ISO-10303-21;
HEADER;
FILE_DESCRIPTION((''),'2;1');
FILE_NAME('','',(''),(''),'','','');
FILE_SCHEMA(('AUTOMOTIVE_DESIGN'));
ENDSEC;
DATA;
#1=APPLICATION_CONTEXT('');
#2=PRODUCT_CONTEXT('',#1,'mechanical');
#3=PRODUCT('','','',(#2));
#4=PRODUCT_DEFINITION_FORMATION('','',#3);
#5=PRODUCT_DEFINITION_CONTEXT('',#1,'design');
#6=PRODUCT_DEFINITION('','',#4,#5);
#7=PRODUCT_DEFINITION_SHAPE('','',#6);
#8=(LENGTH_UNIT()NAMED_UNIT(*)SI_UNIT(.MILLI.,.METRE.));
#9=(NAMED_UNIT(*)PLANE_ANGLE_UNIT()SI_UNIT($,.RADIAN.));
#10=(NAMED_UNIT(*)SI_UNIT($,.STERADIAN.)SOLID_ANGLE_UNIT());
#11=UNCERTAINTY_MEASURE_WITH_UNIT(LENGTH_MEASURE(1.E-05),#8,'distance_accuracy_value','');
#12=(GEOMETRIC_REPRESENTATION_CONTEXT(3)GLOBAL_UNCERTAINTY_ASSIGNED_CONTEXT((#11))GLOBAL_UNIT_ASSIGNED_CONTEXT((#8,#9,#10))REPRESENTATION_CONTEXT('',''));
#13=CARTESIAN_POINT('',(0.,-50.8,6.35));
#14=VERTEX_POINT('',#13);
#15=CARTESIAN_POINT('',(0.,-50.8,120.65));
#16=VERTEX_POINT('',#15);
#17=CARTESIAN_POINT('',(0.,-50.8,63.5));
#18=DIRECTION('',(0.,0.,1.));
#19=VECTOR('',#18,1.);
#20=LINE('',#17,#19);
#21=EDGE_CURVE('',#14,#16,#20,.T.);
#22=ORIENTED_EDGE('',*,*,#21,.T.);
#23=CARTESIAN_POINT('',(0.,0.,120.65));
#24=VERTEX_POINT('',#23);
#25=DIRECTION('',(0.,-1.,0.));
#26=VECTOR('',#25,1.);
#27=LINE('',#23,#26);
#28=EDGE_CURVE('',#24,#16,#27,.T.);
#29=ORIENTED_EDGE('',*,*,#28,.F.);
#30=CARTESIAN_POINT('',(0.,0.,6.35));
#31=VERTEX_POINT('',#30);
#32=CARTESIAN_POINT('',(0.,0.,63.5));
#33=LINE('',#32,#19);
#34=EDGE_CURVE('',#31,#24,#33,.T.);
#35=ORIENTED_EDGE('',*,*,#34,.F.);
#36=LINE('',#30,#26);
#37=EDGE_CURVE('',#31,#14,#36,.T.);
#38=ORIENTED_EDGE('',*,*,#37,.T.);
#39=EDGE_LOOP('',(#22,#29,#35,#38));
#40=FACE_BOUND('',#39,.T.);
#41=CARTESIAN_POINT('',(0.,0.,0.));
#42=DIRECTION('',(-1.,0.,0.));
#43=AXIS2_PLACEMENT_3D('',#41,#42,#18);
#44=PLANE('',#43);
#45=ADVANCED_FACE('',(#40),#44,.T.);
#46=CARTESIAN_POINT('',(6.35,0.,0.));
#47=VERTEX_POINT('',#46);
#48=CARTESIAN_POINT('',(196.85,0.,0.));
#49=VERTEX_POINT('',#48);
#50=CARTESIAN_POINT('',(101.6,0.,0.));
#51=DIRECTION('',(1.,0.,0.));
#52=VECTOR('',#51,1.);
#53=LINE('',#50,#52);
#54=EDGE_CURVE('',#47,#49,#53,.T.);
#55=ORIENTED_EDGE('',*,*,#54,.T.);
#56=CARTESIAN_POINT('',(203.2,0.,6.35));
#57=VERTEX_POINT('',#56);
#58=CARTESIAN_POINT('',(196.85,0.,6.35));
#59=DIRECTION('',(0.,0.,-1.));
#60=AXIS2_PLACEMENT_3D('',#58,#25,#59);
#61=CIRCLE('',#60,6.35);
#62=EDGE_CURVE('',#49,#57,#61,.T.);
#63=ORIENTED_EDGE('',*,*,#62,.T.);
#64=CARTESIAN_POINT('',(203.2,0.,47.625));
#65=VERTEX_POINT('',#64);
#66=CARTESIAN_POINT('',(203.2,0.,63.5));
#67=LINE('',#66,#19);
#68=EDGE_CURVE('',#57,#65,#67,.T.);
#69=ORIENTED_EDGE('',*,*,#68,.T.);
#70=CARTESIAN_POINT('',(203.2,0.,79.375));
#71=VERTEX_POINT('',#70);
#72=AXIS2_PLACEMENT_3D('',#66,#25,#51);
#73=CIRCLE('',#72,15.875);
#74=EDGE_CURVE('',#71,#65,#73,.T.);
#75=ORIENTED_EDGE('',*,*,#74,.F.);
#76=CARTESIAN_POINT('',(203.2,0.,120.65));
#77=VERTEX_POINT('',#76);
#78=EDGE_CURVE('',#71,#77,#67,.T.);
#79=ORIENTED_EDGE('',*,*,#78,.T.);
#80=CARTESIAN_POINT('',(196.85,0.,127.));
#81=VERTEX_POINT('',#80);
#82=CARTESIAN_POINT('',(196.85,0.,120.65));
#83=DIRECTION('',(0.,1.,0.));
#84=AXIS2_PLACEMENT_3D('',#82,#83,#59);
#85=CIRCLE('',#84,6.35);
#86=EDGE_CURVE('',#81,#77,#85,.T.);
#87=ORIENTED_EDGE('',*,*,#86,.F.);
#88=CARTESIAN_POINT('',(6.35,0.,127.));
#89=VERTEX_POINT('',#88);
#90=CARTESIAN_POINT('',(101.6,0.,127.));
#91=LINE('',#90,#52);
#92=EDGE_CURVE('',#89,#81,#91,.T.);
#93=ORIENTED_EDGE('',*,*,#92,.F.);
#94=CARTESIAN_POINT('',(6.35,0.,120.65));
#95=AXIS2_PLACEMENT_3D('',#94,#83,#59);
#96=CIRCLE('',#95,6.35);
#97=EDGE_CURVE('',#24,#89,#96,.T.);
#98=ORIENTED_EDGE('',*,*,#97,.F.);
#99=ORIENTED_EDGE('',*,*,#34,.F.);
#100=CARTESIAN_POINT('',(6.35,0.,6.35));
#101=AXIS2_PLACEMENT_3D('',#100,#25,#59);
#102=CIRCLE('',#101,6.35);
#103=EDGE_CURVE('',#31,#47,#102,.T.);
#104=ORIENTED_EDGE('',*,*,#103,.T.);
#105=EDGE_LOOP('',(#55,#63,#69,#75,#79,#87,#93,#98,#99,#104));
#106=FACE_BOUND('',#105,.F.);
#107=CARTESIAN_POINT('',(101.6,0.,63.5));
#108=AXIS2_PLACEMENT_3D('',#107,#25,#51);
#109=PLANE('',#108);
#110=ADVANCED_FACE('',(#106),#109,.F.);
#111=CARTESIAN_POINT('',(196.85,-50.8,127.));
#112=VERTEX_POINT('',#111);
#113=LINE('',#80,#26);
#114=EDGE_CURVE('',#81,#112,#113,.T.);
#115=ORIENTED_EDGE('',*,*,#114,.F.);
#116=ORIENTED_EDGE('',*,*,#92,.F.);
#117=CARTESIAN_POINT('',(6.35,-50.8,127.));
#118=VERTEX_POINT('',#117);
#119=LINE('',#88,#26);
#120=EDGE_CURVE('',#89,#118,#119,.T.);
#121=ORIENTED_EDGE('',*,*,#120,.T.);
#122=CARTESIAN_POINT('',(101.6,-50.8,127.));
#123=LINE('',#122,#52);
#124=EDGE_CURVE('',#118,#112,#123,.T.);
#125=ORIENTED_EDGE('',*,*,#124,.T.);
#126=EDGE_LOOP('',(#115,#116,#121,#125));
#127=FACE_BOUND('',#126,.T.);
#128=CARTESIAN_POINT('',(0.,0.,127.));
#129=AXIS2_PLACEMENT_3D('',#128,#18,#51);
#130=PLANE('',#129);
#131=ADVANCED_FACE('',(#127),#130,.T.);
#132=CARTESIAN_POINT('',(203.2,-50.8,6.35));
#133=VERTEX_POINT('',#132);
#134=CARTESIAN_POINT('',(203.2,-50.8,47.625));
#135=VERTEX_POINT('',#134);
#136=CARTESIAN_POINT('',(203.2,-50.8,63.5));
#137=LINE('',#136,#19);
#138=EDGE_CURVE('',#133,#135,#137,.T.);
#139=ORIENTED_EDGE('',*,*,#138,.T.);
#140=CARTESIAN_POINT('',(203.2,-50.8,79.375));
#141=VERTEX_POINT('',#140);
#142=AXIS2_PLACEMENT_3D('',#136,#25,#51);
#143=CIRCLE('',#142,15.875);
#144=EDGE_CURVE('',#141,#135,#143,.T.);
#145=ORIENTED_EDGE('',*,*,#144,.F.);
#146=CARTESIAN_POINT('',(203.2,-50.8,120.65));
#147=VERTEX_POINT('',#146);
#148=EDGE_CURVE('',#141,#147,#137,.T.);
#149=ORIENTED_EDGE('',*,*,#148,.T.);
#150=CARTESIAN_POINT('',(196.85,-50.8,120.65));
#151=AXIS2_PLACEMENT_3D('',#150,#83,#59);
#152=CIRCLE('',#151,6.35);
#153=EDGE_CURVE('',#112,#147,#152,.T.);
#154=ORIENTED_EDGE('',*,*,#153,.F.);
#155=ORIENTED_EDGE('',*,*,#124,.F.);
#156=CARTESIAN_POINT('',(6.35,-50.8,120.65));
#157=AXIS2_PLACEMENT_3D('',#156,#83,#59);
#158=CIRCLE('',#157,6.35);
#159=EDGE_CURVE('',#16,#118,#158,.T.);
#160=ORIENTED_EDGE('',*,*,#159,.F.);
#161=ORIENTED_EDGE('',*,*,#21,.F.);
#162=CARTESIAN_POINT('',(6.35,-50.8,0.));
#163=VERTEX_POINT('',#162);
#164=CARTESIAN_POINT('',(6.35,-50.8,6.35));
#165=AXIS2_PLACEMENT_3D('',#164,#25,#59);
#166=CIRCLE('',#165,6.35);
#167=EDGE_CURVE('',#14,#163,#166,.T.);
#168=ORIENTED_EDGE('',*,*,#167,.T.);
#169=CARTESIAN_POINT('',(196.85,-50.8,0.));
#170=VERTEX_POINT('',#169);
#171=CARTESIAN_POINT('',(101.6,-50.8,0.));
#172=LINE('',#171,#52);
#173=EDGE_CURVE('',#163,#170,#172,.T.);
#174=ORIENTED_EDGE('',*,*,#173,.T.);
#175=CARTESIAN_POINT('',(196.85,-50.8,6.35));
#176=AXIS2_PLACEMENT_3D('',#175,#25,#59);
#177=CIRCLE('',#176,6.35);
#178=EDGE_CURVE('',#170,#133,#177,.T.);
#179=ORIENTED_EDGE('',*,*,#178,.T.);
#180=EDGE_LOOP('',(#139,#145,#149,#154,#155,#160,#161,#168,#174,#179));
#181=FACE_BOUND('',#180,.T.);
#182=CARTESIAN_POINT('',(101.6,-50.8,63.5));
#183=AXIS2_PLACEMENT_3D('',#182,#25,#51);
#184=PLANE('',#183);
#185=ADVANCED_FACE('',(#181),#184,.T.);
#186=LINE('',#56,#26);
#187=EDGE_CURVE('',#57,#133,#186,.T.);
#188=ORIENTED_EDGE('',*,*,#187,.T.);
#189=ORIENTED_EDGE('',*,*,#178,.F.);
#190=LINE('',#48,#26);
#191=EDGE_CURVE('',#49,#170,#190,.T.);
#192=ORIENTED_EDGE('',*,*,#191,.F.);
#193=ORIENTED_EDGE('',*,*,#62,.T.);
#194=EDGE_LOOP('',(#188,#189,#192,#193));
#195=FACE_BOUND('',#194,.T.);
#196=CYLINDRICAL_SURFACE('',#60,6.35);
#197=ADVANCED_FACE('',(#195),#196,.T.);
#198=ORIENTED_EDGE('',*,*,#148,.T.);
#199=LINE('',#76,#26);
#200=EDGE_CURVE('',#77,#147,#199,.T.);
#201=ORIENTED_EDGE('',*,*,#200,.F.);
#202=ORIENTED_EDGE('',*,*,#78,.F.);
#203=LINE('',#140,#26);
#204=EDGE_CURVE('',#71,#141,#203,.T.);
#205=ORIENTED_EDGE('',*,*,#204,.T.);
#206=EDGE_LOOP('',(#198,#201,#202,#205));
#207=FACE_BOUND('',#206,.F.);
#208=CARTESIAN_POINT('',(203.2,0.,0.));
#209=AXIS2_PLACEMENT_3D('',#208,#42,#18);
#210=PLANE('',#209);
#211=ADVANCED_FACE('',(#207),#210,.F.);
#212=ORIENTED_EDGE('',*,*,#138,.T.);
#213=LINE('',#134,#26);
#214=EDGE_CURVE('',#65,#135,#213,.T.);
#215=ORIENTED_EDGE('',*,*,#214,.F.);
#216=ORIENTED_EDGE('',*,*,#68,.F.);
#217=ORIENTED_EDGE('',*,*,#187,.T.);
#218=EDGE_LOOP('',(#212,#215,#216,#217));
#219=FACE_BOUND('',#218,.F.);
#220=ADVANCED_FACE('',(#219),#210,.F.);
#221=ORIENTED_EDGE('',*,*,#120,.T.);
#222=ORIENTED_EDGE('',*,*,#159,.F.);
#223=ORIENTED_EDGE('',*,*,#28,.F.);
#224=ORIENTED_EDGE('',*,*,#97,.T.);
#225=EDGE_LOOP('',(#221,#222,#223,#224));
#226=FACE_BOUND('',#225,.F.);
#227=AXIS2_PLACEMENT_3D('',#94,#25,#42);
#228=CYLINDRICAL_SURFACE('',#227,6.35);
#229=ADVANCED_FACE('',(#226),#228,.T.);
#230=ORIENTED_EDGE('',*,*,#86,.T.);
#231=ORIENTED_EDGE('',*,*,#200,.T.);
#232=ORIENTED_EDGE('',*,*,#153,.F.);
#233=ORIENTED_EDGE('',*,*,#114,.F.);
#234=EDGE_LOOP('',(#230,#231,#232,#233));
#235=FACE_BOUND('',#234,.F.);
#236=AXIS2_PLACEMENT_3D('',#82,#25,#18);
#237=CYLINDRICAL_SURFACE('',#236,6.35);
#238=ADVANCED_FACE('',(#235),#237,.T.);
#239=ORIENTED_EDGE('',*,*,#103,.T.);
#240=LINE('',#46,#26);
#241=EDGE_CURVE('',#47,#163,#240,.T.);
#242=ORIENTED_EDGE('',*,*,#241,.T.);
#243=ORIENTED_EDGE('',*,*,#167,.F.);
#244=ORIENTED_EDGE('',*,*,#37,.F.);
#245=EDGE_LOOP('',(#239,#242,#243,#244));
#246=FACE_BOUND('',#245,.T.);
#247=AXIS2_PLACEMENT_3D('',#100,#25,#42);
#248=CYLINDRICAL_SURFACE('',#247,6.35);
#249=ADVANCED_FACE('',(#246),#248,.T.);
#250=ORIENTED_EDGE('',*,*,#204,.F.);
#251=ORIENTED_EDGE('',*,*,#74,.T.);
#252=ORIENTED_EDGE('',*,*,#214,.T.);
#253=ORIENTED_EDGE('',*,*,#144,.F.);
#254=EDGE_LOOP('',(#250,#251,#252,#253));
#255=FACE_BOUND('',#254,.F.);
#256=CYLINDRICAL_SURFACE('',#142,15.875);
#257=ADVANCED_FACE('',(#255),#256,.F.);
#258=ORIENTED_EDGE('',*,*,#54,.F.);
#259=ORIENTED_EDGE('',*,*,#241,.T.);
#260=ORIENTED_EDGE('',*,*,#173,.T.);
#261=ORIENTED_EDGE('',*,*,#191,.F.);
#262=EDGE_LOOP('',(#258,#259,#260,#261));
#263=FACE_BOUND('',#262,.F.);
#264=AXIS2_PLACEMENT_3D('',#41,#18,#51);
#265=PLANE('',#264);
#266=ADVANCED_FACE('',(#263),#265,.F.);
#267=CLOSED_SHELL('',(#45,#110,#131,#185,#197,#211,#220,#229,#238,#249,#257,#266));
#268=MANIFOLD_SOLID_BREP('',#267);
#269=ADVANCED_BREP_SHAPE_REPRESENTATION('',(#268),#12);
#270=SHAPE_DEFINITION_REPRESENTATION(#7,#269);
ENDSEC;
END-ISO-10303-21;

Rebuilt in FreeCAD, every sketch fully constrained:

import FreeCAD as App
import Part
import Sketcher
from FreeCAD import Vector
Q = App.Units.Quantity


def edges_at(feature, points):
    """Names of the edges that pass closest to the given points."""
    edges = feature.Shape.Edges
    near = lambda p: min(range(len(edges)), key=lambda i: edges[i].distToShape(Part.Vertex(*p))[0])
    return sorted({f"Edge{near(p) + 1}" for p in points})


def add_polygon(sketch, points):
    """Adds a closed chain of lines whose ends are joined by coincident constraints."""
    first, n = sketch.GeometryCount, len(points)
    for a, b in zip(points, points[1:] + points[:1]):
        sketch.addGeometry(Part.LineSegment(App.Vector(*a, 0), App.Vector(*b, 0)), False)
    for i in range(n):
        sketch.addConstraint(Sketcher.Constraint("Coincident", first + i, 2, first + (i + 1) % n, 1))

doc = App.newDocument("Part")
params = doc.addObject("Spreadsheet::Sheet", "Params")
for row, (alias, value) in enumerate([
    ("sketch1_width", "8 in"),
    ("sketch1_height", "5 in"),
    ("pad1_length", "2 in"),
    ("sketch2_diameter", "1.25 in"),
    ("fillet_radius", "0.25 in"),
], start=1):
    params.set(f"A{row}", alias)
    params.set(f"B{row}", "=" + value)
    params.setAlias(f"B{row}", alias)

body = doc.addObject("PartDesign::Body", "Body")

# Sketch on XZ plane
sketch1 = body.newObject("Sketcher::SketchObject", "Sketch")
sketch1.AttachmentSupport = (doc.getObject("XZ_Plane"), [""])
sketch1.MapMode = "FlatFace"
add_polygon(sketch1, [(0, 127), (0, 0), (203, 0), (203, 127)])  # lines 0-3
sketch1.addConstraint([
    Sketcher.Constraint("Vertical", 0),
    Sketcher.Constraint("Horizontal", 1),
    Sketcher.Constraint("Vertical", 2),
    Sketcher.Constraint("Horizontal", 3),
    Sketcher.Constraint("Coincident", 0, 2, -1, 1),
    Sketcher.Constraint("DistanceX", 1, 1, 1, 2, Q("8 in")),
    Sketcher.Constraint("DistanceY", 0, 2, 0, 1, Q("5 in")),
])
sketch1.setExpression("Constraints[9]", "Params.sketch1_width")
sketch1.setExpression("Constraints[10]", "Params.sketch1_height")
pad1 = body.newObject("PartDesign::Pad", "Pad")
pad1.Profile = sketch1
pad1.setExpression("Length", "Params.pad1_length")

# Sketch on XZ plane
sketch2 = body.newObject("Sketcher::SketchObject", "Sketch001")
sketch2.AttachmentSupport = (doc.getObject("XZ_Plane"), [""])
sketch2.MapMode = "FlatFace"
sketch2.AttachmentOffset = App.Placement(Vector(0, 0, 2 * 25.4), App.Rotation())
sketch2.addGeometry(Part.Circle(Vector(203, 64, 0), Vector(0, 0, 1), 16), False)
sketch2.addConstraint([
    Sketcher.Constraint("Diameter", 0, Q("1.25 in")),
    Sketcher.Constraint("DistanceX", -1, 1, 0, 3, Q("8 in")),
    Sketcher.Constraint("DistanceY", -1, 1, 0, 3, Q("2.5 in")),
])
sketch2.setExpression("Constraints[0]", "Params.sketch2_diameter")
pocket1 = body.newObject("PartDesign::Pocket", "Pocket")
pocket1.Profile = sketch2
pocket1.Type = "ThroughAll"
doc.recompute()

fillet = body.newObject("PartDesign::Fillet", "Fillet")
fillet.Base = (pocket1, edges_at(pocket1, [
    (203.2, -25.4, 127),
    (203.2, -25.4, 0),
    (0, -25.4, 127),
    (0, -25.4, 0),
]))
fillet.setExpression("Radius", "Params.fillet_radius")

doc.recompute()
